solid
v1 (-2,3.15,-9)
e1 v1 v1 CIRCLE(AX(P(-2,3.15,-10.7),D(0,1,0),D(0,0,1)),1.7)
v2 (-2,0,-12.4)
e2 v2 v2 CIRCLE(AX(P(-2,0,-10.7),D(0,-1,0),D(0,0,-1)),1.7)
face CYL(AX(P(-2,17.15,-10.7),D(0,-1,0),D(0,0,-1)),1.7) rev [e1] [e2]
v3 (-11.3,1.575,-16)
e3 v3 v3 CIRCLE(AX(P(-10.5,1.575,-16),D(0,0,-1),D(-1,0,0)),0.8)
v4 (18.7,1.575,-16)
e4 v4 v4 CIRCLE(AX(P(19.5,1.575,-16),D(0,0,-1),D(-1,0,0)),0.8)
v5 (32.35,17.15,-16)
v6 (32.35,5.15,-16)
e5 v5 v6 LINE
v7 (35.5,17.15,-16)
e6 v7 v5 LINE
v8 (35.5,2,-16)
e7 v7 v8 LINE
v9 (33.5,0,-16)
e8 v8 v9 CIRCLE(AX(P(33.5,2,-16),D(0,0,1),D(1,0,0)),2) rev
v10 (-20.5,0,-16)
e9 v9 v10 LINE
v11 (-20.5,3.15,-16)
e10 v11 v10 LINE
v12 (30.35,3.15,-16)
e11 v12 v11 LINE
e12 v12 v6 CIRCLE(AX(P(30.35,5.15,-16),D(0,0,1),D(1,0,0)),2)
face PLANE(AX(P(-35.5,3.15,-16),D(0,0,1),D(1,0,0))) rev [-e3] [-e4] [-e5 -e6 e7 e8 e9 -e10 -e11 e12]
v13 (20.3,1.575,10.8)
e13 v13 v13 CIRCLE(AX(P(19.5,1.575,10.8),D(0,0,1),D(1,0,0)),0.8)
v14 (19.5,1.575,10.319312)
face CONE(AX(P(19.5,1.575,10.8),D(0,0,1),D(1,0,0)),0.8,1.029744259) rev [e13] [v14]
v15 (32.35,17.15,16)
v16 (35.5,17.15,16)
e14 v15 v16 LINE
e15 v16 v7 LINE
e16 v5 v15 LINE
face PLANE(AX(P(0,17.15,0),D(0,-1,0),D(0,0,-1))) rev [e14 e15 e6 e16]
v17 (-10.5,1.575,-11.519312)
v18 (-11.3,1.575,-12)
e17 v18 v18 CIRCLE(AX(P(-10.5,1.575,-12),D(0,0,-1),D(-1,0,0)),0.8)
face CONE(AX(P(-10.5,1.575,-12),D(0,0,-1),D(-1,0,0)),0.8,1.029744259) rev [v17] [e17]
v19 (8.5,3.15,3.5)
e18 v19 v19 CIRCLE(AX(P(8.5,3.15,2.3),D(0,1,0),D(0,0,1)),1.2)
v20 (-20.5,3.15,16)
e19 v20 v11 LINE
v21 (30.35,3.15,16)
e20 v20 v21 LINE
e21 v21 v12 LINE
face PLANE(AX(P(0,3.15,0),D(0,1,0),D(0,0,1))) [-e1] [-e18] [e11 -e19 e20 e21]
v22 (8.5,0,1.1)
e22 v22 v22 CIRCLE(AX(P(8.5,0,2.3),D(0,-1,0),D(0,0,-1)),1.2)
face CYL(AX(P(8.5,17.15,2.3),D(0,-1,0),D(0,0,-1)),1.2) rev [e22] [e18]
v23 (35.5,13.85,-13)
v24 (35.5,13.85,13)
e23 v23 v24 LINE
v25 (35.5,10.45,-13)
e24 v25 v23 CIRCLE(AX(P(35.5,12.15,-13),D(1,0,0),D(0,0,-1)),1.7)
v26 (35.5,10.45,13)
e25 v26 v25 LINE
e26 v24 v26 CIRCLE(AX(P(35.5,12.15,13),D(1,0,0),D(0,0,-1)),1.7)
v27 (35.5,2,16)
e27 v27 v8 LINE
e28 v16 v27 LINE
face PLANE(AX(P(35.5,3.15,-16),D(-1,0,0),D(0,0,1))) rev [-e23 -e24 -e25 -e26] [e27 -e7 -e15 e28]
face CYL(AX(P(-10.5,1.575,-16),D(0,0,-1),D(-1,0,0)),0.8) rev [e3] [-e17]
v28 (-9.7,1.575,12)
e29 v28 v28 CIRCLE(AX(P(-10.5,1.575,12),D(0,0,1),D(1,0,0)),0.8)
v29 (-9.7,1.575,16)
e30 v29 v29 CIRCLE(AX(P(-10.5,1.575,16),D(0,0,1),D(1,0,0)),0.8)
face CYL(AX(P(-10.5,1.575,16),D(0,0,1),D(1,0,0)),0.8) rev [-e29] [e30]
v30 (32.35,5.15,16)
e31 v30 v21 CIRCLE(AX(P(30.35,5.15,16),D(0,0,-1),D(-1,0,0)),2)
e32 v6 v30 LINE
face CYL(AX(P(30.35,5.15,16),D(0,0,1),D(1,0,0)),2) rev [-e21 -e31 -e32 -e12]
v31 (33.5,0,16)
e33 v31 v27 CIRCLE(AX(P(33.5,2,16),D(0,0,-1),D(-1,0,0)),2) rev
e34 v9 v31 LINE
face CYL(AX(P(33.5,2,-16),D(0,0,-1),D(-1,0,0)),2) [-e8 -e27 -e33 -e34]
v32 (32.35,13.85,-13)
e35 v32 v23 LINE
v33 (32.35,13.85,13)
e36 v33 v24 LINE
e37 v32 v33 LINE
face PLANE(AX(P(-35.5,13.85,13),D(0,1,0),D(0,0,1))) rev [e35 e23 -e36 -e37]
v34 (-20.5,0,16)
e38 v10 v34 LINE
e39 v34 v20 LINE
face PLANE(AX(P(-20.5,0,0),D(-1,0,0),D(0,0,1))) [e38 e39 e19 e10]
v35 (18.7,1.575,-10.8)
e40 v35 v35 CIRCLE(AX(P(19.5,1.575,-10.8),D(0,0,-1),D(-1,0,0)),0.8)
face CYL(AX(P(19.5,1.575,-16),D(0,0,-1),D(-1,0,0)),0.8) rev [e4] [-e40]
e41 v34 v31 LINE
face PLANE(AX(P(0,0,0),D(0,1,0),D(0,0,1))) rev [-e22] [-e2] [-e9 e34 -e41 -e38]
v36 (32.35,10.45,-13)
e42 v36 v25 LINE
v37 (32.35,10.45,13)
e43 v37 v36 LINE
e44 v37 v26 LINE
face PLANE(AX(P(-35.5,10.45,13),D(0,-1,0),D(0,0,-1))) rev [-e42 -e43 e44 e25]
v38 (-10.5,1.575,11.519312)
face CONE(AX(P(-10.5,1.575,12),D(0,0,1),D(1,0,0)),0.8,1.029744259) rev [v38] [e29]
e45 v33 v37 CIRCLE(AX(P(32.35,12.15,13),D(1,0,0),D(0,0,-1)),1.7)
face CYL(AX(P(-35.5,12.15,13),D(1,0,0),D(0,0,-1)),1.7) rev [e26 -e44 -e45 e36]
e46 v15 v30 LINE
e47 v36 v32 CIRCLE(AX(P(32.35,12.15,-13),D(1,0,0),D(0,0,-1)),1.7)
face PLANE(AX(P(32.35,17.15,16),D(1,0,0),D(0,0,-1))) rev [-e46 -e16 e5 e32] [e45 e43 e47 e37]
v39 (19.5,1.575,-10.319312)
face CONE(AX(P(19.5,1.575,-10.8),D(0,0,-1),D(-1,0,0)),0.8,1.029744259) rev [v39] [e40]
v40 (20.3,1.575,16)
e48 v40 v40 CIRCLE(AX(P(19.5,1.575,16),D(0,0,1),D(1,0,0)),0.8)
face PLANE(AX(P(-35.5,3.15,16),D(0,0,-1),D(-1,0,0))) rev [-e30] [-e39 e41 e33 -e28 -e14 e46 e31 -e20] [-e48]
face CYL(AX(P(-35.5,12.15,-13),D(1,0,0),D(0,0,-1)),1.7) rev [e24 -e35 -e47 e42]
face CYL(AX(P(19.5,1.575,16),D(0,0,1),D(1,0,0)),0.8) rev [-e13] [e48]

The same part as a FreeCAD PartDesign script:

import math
import FreeCAD as App
import Part
import Sketcher
from FreeCAD import Vector
Q = App.Units.Quantity


def edges_at(feature, points):
    """Names of the edges that pass closest to the given points."""
    edges = feature.Shape.Edges
    near = lambda p: min(range(len(edges)), key=lambda i: edges[i].distToShape(Part.Vertex(*p))[0])
    return sorted({f"Edge{near(p) + 1}" for p in points})

doc = App.newDocument("Part")
body = doc.addObject("PartDesign::Body", "Body")

# Sketch on XZ plane
sketch1 = body.newObject("Sketcher::SketchObject", "Sketch")
sketch1.AttachmentSupport = (doc.getObject("XZ_Plane"), [""])
sketch1.MapMode = "FlatFace"
sketch1.addGeometry([
    Part.LineSegment(Vector(-36, -16, 0), Vector(-36, 16, 0)),
    Part.LineSegment(Vector(-36, 16, 0), Vector(36, 16, 0)),
    Part.LineSegment(Vector(36, 16, 0), Vector(36, -16, 0)),
    Part.LineSegment(Vector(36, -16, 0), Vector(-36, -16, 0)),
], False)
sketch1.addConstraint([
    Sketcher.Constraint("Coincident", 0, 2, 1, 1),
    Sketcher.Constraint("Coincident", 1, 2, 2, 1),
    Sketcher.Constraint("Coincident", 2, 2, 3, 1),
    Sketcher.Constraint("Coincident", 3, 2, 0, 1),
    Sketcher.Constraint("Vertical", 0),
    Sketcher.Constraint("Horizontal", 1),
    Sketcher.Constraint("Vertical", 2),
    Sketcher.Constraint("Horizontal", 3),
    Sketcher.Constraint("Symmetric", 0, 2, 2, 2, -1, 1),
    Sketcher.Constraint("DistanceX", 1, 1, 1, 2, Q("71 mm")),
    Sketcher.Constraint("DistanceY", 0, 1, 0, 2, Q("32 mm")),
])
pad1 = body.newObject("PartDesign::Pad", "Pad")
pad1.Profile = sketch1
pad1.Length = 3.15
pad1.Reversed = True

# Sketch on XZ plane
sketch2 = body.newObject("Sketcher::SketchObject", "Sketch001")
sketch2.AttachmentSupport = (doc.getObject("XZ_Plane"), [""])
sketch2.MapMode = "FlatFace"
sketch2.AttachmentOffset = App.Placement(Vector(0, 0, -3.15), App.Rotation())
sketch2.addGeometry([
    Part.LineSegment(Vector(32.4, -16, 0), Vector(32.4, 16, 0)),
    Part.LineSegment(Vector(32.4, 16, 0), Vector(35.5, 16, 0)),
    Part.LineSegment(Vector(35.5, 16, 0), Vector(35.5, -16, 0)),
    Part.LineSegment(Vector(35.5, -16, 0), Vector(32.4, -16, 0)),
], False)
sketch2.addConstraint([
    Sketcher.Constraint("Coincident", 0, 2, 1, 1),
    Sketcher.Constraint("Coincident", 1, 2, 2, 1),
    Sketcher.Constraint("Coincident", 2, 2, 3, 1),
    Sketcher.Constraint("Coincident", 3, 2, 0, 1),
    Sketcher.Constraint("Vertical", 0),
    Sketcher.Constraint("Horizontal", 1),
    Sketcher.Constraint("Vertical", 2),
    Sketcher.Constraint("Horizontal", 3),
    Sketcher.Constraint("DistanceY", 0, 1, 0, 2, Q("32 mm")),
    Sketcher.Constraint("DistanceY", -1, 1, 0, 2, Q("16 mm")),
    Sketcher.Constraint("DistanceX", 1, 1, 1, 2, Q("3.15 mm")),
    Sketcher.Constraint("DistanceX", -1, 1, 1, 2, Q("35.5 mm")),
])
pad2 = body.newObject("PartDesign::Pad", "Pad001")
pad2.Profile = sketch2
pad2.Length = 14
pad2.Reversed = True
doc.recompute()

fillet = body.newObject("PartDesign::Fillet", "Fillet")
fillet.Base = (pad2, edges_at(pad2, [(32.35, 3.15, 0), (35.5, 0, 0)]))
fillet.Radius = 2

# Sketch on XZ plane
sketch3 = body.newObject("Sketcher::SketchObject", "Sketch002")
sketch3.AttachmentSupport = (doc.getObject("XZ_Plane"), [""])
sketch3.MapMode = "FlatFace"
sketch3.addGeometry([
    Part.Circle(Vector(-2, -10.7, 0), Vector(0, 0, 1), 1.7),
    Part.Circle(Vector(8.5, 2.3, 0), Vector(0, 0, 1), 1.2),
], False)
sketch3.addConstraint([
    Sketcher.Constraint("Diameter", 0, Q("3.4 mm")),
    Sketcher.Constraint("Diameter", 1, Q("2.4 mm")),
    Sketcher.Constraint("DistanceX", 0, 3, -1, 1, Q("2 mm")),
    Sketcher.Constraint("DistanceY", 0, 3, 1, 3, Q("13 mm")),
    Sketcher.Constraint("DistanceY", 0, 3, -1, 1, Q("10.7 mm")),
    Sketcher.Constraint("DistanceX", -1, 1, 1, 3, Q("8.5 mm")),
])
pocket1 = body.newObject("PartDesign::Pocket", "Pocket")
pocket1.Profile = sketch3
pocket1.Type = "ThroughAll"

# Sketch on YZ plane
sketch4 = body.newObject("Sketcher::SketchObject", "Sketch003")
sketch4.AttachmentSupport = (doc.getObject("YZ_Plane"), [""])
sketch4.MapMode = "FlatFace"
sketch4.AttachmentOffset = App.Placement(Vector(0, 0, 19.5), App.Rotation())
sketch4.addGeometry([
    Part.LineSegment(Vector(1.6, 10.3, 0), Vector(1.6, 16, 0)),
    Part.LineSegment(Vector(1.6, 16, 0), Vector(0.8, 16, 0)),
    Part.LineSegment(Vector(0.8, 16, 0), Vector(0.8, 10.8, 0)),
    Part.LineSegment(Vector(0.8, 10.8, 0), Vector(1.6, 10.3, 0)),
], False)
sketch4.addGeometry(Part.LineSegment(Vector(1.6, 16, 0), Vector(1.6, 10.3, 0)), True)  # axis
sketch4.addConstraint([
    Sketcher.Constraint("Coincident", 0, 2, 1, 1),
    Sketcher.Constraint("Coincident", 1, 2, 2, 1),
    Sketcher.Constraint("Coincident", 2, 2, 3, 1),
    Sketcher.Constraint("Coincident", 3, 2, 0, 1),
    Sketcher.Constraint("Vertical", 0),
    Sketcher.Constraint("Horizontal", 1),
    Sketcher.Constraint("Vertical", 2),
    Sketcher.Constraint("Vertical", 4),
    Sketcher.Constraint("Coincident", 4, 1, 0, 2),
    Sketcher.Constraint("Equal", 0, 4),
    Sketcher.Constraint("Angle", 3, Q("-31 deg")),
    Sketcher.Constraint("DistanceX", 1, 2, 1, 1, Q("0.8 mm")),
    Sketcher.Constraint("DistanceY", 2, 2, 2, 1, Q("5.2 mm")),
    Sketcher.Constraint("DistanceY", -1, 1, 0, 2, Q("16 mm")),
    Sketcher.Constraint("DistanceX", -1, 1, 0, 2, Q("1.575 mm")),
])
groove = body.newObject("PartDesign::Groove", "Groove")
groove.Profile = sketch4
groove.ReferenceAxis = (sketch4, ["Axis0"])
groove.Angle = 360
doc.recompute()

mirrored = body.newObject("PartDesign::Mirrored", "Mirrored")
mirrored.Originals = [groove]
mirrored.MirrorPlane = (doc.getObject("XY_Plane"), [""])
body.Tip = mirrored

# Sketch on YZ plane
sketch5 = body.newObject("Sketcher::SketchObject", "Sketch004")
sketch5.AttachmentSupport = (doc.getObject("YZ_Plane"), [""])
sketch5.MapMode = "FlatFace"
sketch5.AttachmentOffset = App.Placement(Vector(0, 0, 35.5), App.Rotation())
sketch5.addGeometry([
    Part.LineSegment(Vector(13.8, -13, 0), Vector(13.8, 13, 0)),
    Part.ArcOfCircle(Part.Circle(Vector(12.2, 13, 0), Vector(0, 0, 1), 1.7), math.radians(0), math.radians(180)),
    Part.LineSegment(Vector(10.4, 13, 0), Vector(10.4, -13, 0)),
    Part.ArcOfCircle(Part.Circle(Vector(12.2, -13, 0), Vector(0, 0, 1), 1.7), math.radians(180), math.radians(360)),
], False)
sketch5.addConstraint([
    Sketcher.Constraint("Tangent", 0, 2, 1, 1),
    Sketcher.Constraint("Tangent", 1, 2, 2, 1),
    Sketcher.Constraint("Tangent", 2, 2, 3, 1),
    Sketcher.Constraint("Tangent", 3, 2, 0, 1),
    Sketcher.Constraint("Vertical", 0),
    Sketcher.Constraint("Vertical", 2),
    Sketcher.Constraint("Radius", 1, Q("1.7 mm")),
    Sketcher.Constraint("DistanceY", 0, 1, 0, 2, Q("26 mm")),
    Sketcher.Constraint("DistanceY", -1, 1, 1, 3, Q("13 mm")),
    Sketcher.Constraint("DistanceX", -1, 1, 1, 3, Q("12.15 mm")),
])
pocket2 = body.newObject("PartDesign::Pocket", "Pocket001")
pocket2.Profile = sketch5
pocket2.Type = "ThroughAll"

# Sketch on YZ plane
sketch6 = body.newObject("Sketcher::SketchObject", "Sketch005")
sketch6.AttachmentSupport = (doc.getObject("YZ_Plane"), [""])
sketch6.MapMode = "FlatFace"
sketch6.AttachmentOffset = App.Placement(Vector(0, 0, -35.5), App.Rotation())
sketch6.addGeometry([
    Part.LineSegment(Vector(3.1, -16, 0), Vector(0, -16, 0)),
    Part.LineSegment(Vector(0, -16, 0), Vector(0, 16, 0)),
    Part.LineSegment(Vector(0, 16, 0), Vector(3.1, 16, 0)),
    Part.LineSegment(Vector(3.1, 16, 0), Vector(3.1, -16, 0)),
], False)
sketch6.addConstraint([
    Sketcher.Constraint("Coincident", 0, 2, 1, 1),
    Sketcher.Constraint("Coincident", 1, 2, 2, 1),
    Sketcher.Constraint("Coincident", 2, 2, 3, 1),
    Sketcher.Constraint("Coincident", 3, 2, 0, 1),
    Sketcher.Constraint("Horizontal", 0),
    Sketcher.Constraint("Vertical", 1),
    Sketcher.Constraint("Horizontal", 2),
    Sketcher.Constraint("Vertical", 3),
    Sketcher.Constraint("Symmetric", 0, 2, 1, 2, -1, 1),
    Sketcher.Constraint("DistanceY", 1, 1, 1, 2, Q("32 mm")),
    Sketcher.Constraint("DistanceX", 0, 2, 0, 1, Q("3.15 mm")),
])
pocket3 = body.newObject("PartDesign::Pocket", "Pocket002")
pocket3.Profile = sketch6
pocket3.Length = 15
pocket3.Reversed = True

# Sketch on XY plane
sketch7 = body.newObject("Sketcher::SketchObject", "Sketch006")
sketch7.AttachmentSupport = (doc.getObject("XY_Plane"), [""])
sketch7.MapMode = "FlatFace"
sketch7.AttachmentOffset = App.Placement(Vector(0, 0, 16), App.Rotation())
sketch7.addGeometry(Part.Circle(Vector(-10.5, 1.6, 0), Vector(0, 0, 1), 0.8), False)
sketch7.addConstraint([
    Sketcher.Constraint("Diameter", 0, Q("1.6 mm")),
    Sketcher.Constraint("DistanceX", 0, 3, -1, 1, Q("10.5 mm")),
    Sketcher.Constraint("DistanceY", -1, 1, 0, 3, Q("1.575 mm")),
])
doc.recompute()
hole = body.newObject("PartDesign::Hole", "Hole")
hole.Profile = sketch7
hole.ThreadType = "None"
hole.Diameter = 1.6
hole.DepthType = "Dimension"
hole.Depth = 4
hole.DrillPoint = "Angled"
hole.DrillPointAngle = 118

# Sketch on XY plane
sketch8 = body.newObject("Sketcher::SketchObject", "Sketch007")
sketch8.AttachmentSupport = (doc.getObject("XY_Plane"), [""])
sketch8.MapMode = "FlatFace"
sketch8.AttachmentOffset = App.Placement(Vector(0, 0, -16), App.Rotation())
sketch8.addGeometry(Part.Circle(Vector(-10.5, 1.6, 0), Vector(0, 0, 1), 0.8), False)
sketch8.addConstraint([
    Sketcher.Constraint("Diameter", 0, Q("1.6 mm")),
    Sketcher.Constraint("DistanceX", 0, 3, -1, 1, Q("10.5 mm")),
    Sketcher.Constraint("DistanceY", -1, 1, 0, 3, Q("1.575 mm")),
])
doc.recompute()
hole2 = body.newObject("PartDesign::Hole", "Hole001")
hole2.Profile = sketch8
hole2.ThreadType = "None"
hole2.Diameter = 1.6
hole2.DepthType = "Dimension"
hole2.Depth = 4
hole2.DrillPoint = "Angled"
hole2.DrillPointAngle = 118
hole2.Reversed = True

doc.recompute()
